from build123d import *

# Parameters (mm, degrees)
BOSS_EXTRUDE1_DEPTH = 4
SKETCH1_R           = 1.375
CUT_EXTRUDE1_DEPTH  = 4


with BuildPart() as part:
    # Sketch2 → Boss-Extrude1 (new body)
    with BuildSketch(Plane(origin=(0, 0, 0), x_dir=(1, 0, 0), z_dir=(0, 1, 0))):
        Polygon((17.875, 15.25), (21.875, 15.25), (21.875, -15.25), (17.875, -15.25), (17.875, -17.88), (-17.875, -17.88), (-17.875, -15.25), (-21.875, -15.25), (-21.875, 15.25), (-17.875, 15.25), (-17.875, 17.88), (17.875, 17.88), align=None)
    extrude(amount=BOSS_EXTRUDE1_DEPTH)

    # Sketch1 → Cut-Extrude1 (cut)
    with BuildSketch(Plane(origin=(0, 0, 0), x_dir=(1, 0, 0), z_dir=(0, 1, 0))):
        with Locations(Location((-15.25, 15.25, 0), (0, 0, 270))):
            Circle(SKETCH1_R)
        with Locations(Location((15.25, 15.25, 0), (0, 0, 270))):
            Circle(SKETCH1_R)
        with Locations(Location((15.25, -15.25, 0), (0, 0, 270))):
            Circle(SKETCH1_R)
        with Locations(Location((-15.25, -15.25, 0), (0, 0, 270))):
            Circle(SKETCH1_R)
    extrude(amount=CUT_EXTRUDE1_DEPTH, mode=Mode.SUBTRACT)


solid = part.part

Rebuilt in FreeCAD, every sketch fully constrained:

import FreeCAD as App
import Part
import Sketcher


def add_polygon(sketch, points):
    """Adds a closed chain of lines whose ends are joined by coincident constraints."""
    first, n = sketch.GeometryCount, len(points)
    for a, b in zip(points, points[1:] + points[:1]):
        sketch.addGeometry(Part.LineSegment(App.Vector(*a, 0), App.Vector(*b, 0)), False)
    for i in range(n):
        sketch.addConstraint(Sketcher.Constraint("Coincident", first + i, 2, first + (i + 1) % n, 1))

doc = App.newDocument("Part")
params = doc.addObject("Spreadsheet::Sheet", "Params")
for row, (alias, value) in enumerate([
    ("sketch1_width", "4 mm"),
    ("sketch1_height", "30.5 mm"),
    ("sketch1_width2", "35.75 mm"),
    ("sketch1_height2", "2.63 mm"),
    ("pad1_length", "4 mm"),
    ("sketch2_diameter", "2.75 mm"),
    ("pocket1_length", "4 mm"),
], start=1):
    params.set(f"A{row}", alias)
    params.set(f"B{row}", "=" + value)
    params.setAlias(f"B{row}", alias)

body = doc.addObject("PartDesign::Body", "Body")

sketch1 = doc.addObject("Sketcher::SketchObject", "Sketch")
body.addObject(sketch1)
sketch1.AttachmentSupport = (doc.XZ_Plane, [""])
sketch1.MapMode = "FlatFace"
add_polygon(sketch1, [(21.9, -15.2), (17.9, -15.2), (17.9, -17.9), (-17.9, -17.9), (-17.9, -15.2), (-21.9, -15.2), (-21.9, 15.2), (-17.9, 15.2), (-17.9, 17.9), (17.9, 17.9), (17.9, 15.2), (21.9, 15.2)])
sketch1.addConstraint([
    Sketcher.Constraint("Horizontal", 0),
    Sketcher.Constraint("Vertical", 1),
    Sketcher.Constraint("Horizontal", 2),
    Sketcher.Constraint("Vertical", 3),
    Sketcher.Constraint("Horizontal", 4),
    Sketcher.Constraint("Vertical", 5),
    Sketcher.Constraint("Horizontal", 6),
    Sketcher.Constraint("Vertical", 7),
    Sketcher.Constraint("Horizontal", 8),
    Sketcher.Constraint("Vertical", 9),
    Sketcher.Constraint("Horizontal", 10),
    Sketcher.Constraint("Vertical", 11),
    Sketcher.Constraint("Symmetric", 0, 2, 6, 2, -1, 1),
    Sketcher.Constraint("Symmetric", 2, 2, 8, 2, -1, 1),
    Sketcher.Constraint("Symmetric", 4, 2, 10, 2, -1, 1),
    Sketcher.Constraint("Symmetric", 0, 2, 3, 2, -2),
    Sketcher.Constraint("DistanceX", 0, 2, 0, 1, 4.0),
    Sketcher.Constraint("DistanceY", 5, 1, 5, 2, 30.5),
    Sketcher.Constraint("DistanceX", 2, 2, 2, 1, 35.75),
    Sketcher.Constraint("DistanceY", 1, 2, 1, 1, 2.63),
])
sketch1.setExpression("Constraints[28]", "Params.sketch1_width")
sketch1.setExpression("Constraints[29]", "Params.sketch1_height")
sketch1.setExpression("Constraints[30]", "Params.sketch1_width2")
sketch1.setExpression("Constraints[31]", "Params.sketch1_height2")
pad1 = doc.addObject("PartDesign::Pad", "Pad")
body.addObject(pad1)
pad1.Profile = sketch1
pad1.setExpression("Length", "Params.pad1_length")
pad1.Reversed = True

sketch2 = doc.addObject("Sketcher::SketchObject", "Sketch001")
body.addObject(sketch2)
sketch2.AttachmentSupport = (doc.XZ_Plane, [""])
sketch2.MapMode = "FlatFace"
sketch2.addGeometry([
    Part.Circle(App.Vector(-15.2, -15.2, 0), App.Vector(0, 0, 1), 1.4),
    Part.Circle(App.Vector(15.2, -15.2, 0), App.Vector(0, 0, 1), 1.4),
    Part.Circle(App.Vector(15.2, 15.2, 0), App.Vector(0, 0, 1), 1.4),
    Part.Circle(App.Vector(-15.2, 15.2, 0), App.Vector(0, 0, 1), 1.4),
], False)
sketch2.addConstraint([
    Sketcher.Constraint("Equal", 0, 1),
    Sketcher.Constraint("Equal", 1, 2),
    Sketcher.Constraint("Equal", 2, 3),
    Sketcher.Constraint("Symmetric", 0, 3, 2, 3, -1, 1),
    Sketcher.Constraint("Symmetric", 1, 3, 3, 3, -1, 1),
    Sketcher.Constraint("Symmetric", 0, 3, 1, 3, -2),
    Sketcher.Constraint("Diameter", 0, 2.75),
    Sketcher.Constraint("DistanceX", 0, 3, 1, 3, 30.5),
    Sketcher.Constraint("DistanceY", 1, 3, 2, 3, 30.5),
])
sketch2.setExpression("Constraints[6]", "Params.sketch2_diameter")
pocket1 = doc.addObject("PartDesign::Pocket", "Pocket")
body.addObject(pocket1)
pocket1.Profile = sketch2
pocket1.setExpression("Length", "Params.pocket1_length")

doc.recompute()
